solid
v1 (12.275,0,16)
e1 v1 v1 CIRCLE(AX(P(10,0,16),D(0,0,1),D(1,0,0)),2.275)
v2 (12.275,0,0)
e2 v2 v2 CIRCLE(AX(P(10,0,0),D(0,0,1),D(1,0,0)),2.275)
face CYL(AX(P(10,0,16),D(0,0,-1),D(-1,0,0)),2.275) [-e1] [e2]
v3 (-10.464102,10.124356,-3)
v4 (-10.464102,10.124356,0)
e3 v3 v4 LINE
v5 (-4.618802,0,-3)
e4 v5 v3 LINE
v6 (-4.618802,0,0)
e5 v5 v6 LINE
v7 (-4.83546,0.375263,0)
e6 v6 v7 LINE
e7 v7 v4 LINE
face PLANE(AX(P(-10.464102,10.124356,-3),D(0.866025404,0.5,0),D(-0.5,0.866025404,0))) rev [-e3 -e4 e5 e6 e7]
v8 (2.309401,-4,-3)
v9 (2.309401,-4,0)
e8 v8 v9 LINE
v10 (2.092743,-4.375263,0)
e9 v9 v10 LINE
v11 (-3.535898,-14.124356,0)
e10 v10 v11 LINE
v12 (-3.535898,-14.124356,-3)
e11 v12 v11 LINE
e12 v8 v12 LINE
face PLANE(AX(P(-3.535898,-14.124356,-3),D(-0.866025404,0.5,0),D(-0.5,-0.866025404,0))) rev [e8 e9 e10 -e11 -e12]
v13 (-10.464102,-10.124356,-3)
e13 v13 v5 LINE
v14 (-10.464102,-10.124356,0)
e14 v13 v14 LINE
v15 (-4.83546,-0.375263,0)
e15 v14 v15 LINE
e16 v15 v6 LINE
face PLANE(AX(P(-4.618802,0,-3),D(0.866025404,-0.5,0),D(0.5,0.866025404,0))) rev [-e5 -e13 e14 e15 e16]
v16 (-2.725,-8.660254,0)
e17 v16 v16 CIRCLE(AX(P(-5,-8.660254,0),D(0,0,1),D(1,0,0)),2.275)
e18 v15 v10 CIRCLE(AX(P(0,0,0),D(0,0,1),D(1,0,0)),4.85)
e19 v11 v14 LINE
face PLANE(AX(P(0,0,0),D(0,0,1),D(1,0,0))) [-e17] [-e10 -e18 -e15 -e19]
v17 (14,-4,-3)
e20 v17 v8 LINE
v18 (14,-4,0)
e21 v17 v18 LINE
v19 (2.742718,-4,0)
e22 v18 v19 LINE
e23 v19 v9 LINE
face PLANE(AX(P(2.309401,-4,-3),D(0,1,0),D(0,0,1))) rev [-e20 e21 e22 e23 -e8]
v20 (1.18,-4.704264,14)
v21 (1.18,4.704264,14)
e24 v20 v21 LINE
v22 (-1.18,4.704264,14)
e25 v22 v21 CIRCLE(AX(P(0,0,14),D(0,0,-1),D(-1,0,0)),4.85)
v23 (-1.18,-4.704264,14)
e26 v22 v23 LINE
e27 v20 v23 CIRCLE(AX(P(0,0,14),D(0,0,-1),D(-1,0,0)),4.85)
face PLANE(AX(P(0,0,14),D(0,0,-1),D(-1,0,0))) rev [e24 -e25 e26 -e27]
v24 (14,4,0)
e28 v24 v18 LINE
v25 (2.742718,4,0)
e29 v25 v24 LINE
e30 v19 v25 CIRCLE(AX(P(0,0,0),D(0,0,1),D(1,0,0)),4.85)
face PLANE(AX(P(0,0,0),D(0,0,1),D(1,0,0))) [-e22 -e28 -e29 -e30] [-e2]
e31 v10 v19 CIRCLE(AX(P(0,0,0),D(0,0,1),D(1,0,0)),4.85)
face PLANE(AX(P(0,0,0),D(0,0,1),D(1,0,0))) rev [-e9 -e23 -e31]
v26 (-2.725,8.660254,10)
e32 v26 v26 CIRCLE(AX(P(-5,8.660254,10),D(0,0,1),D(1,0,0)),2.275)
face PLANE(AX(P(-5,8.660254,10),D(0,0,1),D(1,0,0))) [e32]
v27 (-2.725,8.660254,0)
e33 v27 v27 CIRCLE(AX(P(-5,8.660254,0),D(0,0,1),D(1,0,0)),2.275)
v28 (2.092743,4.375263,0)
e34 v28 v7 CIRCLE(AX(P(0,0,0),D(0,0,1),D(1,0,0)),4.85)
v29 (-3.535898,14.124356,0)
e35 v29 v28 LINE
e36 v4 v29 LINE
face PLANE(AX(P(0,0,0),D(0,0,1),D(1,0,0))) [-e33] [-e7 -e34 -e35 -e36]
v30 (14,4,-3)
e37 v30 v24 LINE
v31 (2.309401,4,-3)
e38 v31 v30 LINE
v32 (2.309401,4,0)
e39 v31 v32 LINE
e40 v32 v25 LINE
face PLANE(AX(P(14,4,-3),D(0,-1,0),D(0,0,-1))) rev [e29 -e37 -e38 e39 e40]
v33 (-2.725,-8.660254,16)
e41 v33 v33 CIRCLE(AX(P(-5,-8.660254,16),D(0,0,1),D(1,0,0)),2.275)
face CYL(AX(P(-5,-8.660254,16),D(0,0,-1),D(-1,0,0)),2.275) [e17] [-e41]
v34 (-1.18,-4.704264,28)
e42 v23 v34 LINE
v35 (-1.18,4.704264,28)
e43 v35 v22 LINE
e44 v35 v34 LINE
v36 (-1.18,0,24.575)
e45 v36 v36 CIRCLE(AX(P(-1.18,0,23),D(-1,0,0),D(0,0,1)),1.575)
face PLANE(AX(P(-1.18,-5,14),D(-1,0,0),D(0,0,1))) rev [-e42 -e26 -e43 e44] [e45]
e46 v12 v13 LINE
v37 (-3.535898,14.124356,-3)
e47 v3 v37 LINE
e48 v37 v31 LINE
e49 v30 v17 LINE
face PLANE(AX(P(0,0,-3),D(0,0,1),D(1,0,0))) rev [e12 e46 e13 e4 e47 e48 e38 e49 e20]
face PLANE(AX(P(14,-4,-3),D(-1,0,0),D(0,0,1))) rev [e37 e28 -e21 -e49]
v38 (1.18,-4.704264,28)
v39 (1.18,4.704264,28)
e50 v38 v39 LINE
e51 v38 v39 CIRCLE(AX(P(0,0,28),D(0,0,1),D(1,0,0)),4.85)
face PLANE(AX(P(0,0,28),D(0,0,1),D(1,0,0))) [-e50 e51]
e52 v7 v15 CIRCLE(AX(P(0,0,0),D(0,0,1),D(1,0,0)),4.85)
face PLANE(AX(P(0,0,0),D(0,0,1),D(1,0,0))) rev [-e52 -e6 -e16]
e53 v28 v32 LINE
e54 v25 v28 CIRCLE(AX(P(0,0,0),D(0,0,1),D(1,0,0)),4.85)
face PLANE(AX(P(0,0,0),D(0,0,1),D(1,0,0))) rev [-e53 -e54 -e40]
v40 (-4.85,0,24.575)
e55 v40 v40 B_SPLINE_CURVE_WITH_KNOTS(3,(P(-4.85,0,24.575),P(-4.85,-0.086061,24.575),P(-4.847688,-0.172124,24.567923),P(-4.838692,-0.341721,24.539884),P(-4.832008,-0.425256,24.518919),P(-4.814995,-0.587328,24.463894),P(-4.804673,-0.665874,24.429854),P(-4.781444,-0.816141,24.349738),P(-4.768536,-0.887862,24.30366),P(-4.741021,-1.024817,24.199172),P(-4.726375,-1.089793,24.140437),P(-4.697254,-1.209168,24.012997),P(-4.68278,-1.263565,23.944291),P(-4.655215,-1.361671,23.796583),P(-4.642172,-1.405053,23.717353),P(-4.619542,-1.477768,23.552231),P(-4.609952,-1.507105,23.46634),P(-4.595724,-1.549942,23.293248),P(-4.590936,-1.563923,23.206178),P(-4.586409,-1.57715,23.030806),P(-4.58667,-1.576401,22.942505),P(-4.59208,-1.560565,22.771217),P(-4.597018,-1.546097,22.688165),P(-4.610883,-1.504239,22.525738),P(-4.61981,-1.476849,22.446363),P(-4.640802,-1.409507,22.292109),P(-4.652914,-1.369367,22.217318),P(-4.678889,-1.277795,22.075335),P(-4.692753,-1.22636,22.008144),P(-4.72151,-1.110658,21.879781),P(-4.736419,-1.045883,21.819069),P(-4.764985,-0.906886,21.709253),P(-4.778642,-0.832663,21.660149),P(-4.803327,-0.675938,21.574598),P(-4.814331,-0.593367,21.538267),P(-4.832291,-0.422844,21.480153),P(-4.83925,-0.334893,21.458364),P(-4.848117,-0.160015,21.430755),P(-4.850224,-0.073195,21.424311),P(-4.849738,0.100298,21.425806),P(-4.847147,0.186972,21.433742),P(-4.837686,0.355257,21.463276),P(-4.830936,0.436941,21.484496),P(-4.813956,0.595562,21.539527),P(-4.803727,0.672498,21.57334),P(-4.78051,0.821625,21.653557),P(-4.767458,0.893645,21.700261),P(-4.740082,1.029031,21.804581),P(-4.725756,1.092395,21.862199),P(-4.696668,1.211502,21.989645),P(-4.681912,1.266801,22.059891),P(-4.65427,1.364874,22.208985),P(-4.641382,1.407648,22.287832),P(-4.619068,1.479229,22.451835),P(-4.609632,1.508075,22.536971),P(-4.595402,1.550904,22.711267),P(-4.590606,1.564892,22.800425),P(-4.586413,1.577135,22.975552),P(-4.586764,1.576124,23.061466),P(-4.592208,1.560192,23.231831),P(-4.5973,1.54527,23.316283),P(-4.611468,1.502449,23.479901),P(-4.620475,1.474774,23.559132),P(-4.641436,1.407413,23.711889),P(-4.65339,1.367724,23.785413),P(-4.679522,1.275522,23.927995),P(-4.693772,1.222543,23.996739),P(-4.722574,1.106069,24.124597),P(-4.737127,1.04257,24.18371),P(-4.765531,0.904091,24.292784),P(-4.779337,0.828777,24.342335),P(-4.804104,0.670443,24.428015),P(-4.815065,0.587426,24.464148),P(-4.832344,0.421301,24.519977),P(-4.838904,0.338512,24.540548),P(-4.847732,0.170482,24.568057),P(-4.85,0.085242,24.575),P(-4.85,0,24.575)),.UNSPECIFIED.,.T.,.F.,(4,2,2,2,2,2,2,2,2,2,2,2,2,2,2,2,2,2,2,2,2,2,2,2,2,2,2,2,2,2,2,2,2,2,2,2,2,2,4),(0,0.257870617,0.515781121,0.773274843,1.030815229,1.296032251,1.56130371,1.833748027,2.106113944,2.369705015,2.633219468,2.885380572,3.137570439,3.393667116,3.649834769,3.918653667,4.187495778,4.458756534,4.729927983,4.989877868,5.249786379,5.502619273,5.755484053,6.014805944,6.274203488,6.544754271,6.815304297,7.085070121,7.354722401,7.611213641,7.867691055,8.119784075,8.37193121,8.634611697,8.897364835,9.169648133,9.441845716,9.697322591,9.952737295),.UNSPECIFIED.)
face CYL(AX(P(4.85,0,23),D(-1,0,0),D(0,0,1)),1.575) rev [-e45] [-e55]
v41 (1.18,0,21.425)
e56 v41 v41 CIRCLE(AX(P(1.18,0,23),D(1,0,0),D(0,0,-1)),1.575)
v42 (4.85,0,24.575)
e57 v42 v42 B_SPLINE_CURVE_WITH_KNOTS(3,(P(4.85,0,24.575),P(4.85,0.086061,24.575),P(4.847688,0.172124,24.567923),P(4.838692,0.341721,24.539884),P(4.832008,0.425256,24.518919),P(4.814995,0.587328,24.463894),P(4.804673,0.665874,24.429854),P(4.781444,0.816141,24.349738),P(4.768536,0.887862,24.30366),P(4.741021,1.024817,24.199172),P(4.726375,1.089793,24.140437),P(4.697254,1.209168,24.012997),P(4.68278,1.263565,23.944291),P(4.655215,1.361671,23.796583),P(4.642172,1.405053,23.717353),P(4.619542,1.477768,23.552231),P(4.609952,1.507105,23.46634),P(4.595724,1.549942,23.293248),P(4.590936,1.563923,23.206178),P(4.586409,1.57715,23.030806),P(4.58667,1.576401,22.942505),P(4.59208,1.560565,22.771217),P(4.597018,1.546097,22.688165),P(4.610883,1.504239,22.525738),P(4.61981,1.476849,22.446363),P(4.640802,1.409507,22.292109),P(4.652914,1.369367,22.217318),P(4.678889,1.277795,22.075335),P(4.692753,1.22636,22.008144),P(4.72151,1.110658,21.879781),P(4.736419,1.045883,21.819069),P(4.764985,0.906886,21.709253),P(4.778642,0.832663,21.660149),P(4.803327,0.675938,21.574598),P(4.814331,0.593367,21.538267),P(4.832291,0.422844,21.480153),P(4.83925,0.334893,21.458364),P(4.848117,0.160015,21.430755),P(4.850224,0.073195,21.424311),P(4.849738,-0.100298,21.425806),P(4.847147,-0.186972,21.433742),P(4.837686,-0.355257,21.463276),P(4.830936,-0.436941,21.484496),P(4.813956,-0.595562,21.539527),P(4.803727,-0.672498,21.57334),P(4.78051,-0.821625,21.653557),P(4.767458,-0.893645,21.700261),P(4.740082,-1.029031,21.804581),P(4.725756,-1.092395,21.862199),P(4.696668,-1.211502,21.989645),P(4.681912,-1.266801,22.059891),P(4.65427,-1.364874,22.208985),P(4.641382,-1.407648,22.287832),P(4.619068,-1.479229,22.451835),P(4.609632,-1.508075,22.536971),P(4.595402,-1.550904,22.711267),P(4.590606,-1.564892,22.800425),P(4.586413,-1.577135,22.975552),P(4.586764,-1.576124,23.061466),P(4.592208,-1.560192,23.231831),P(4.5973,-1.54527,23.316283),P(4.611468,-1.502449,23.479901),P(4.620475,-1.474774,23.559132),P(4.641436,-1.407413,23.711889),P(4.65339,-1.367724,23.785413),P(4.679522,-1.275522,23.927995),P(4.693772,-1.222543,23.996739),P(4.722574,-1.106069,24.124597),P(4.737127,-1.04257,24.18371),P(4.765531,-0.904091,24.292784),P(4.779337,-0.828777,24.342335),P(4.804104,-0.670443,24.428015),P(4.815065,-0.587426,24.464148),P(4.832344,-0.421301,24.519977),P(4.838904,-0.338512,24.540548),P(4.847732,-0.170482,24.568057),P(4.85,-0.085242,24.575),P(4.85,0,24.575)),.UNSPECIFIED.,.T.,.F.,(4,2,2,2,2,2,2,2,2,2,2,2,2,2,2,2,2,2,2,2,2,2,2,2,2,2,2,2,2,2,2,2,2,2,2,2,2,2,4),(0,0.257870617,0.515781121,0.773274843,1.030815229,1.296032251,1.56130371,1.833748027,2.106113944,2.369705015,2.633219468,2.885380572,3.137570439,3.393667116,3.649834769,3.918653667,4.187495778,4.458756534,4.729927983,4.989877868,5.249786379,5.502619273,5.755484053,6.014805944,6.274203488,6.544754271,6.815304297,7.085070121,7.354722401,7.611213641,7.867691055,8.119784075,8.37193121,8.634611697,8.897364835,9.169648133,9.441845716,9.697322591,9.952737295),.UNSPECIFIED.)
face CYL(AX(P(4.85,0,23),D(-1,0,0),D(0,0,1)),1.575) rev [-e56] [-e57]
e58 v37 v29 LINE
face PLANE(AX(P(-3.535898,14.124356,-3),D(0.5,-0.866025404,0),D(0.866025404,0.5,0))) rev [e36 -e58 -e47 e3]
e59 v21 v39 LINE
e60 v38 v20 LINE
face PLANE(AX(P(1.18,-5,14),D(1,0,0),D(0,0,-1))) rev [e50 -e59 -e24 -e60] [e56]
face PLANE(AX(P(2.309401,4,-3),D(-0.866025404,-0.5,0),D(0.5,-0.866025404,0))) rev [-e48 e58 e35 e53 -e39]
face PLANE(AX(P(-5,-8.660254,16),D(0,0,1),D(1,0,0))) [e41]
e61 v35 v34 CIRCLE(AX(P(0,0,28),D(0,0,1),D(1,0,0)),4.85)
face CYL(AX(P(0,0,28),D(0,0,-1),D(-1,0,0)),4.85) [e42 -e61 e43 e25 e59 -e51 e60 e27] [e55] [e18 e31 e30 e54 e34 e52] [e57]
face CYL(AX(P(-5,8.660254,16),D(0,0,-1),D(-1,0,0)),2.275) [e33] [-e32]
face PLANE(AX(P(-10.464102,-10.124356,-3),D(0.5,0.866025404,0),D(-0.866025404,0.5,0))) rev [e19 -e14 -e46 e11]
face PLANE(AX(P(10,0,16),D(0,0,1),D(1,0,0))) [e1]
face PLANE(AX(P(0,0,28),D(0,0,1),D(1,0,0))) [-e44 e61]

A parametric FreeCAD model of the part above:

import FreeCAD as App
import Part
import Sketcher
from FreeCAD import Vector
Q = App.Units.Quantity


def add_polygon(sketch, points):
    """Adds a closed chain of lines whose ends are joined by coincident constraints."""
    first, n = sketch.GeometryCount, len(points)
    for a, b in zip(points, points[1:] + points[:1]):
        sketch.addGeometry(Part.LineSegment(App.Vector(*a, 0), App.Vector(*b, 0)), False)
    for i in range(n):
        sketch.addConstraint(Sketcher.Constraint("Coincident", first + i, 2, first + (i + 1) % n, 1))

doc = App.newDocument("Part")
body = doc.addObject("PartDesign::Body", "Body")

# Sketch on XY plane
sketch1 = body.newObject("Sketcher::SketchObject", "Sketch")
sketch1.AttachmentSupport = (doc.getObject("XY_Plane"), [""])
sketch1.MapMode = "FlatFace"
sketch1.addGeometry(Part.Circle(Vector(0, 0, 0), Vector(0, 0, 1), 4.8), False)
sketch1.addConstraint(Sketcher.Constraint("Coincident", 0, 3, -1, 1))
sketch1.addConstraint(Sketcher.Constraint("Diameter", 0, Q("9.7 mm")))
pad1 = body.newObject("PartDesign::Pad", "Pad")
pad1.Profile = sketch1
pad1.Length = 28

# Sketch on XY plane
sketch2 = body.newObject("Sketcher::SketchObject", "Sketch001")
sketch2.AttachmentSupport = (doc.getObject("XY_Plane"), [""])
sketch2.MapMode = "FlatFace"
sketch2.AttachmentOffset = App.Placement(Vector(0, 0, 28), App.Rotation())
add_polygon(sketch2, [(-1.2, 5), (-1.2, -5), (1.2, -5), (1.2, 5)])  # lines 0-3
sketch2.addConstraint(Sketcher.Constraint("Vertical", 0))
sketch2.addConstraint(Sketcher.Constraint("Horizontal", 1))
sketch2.addConstraint(Sketcher.Constraint("Vertical", 2))
sketch2.addConstraint(Sketcher.Constraint("Horizontal", 3))
sketch2.addConstraint(Sketcher.Constraint("Symmetric", 0, 2, 2, 2, -1, 1))
sketch2.addConstraint(Sketcher.Constraint("DistanceY", 0, 2, 0, 1, Q("10 mm")))
sketch2.addConstraint(Sketcher.Constraint("DistanceX", 1, 1, 1, 2, Q("2.36 mm")))
pocket1 = body.newObject("PartDesign::Pocket", "Pocket")
pocket1.Profile = sketch2
pocket1.Length = 14

# Sketch on YZ plane
sketch3 = body.newObject("Sketcher::SketchObject", "Sketch002")
sketch3.AttachmentSupport = (doc.getObject("YZ_Plane"), [""])
sketch3.MapMode = "FlatFace"
sketch3.AttachmentOffset = App.Placement(Vector(0, 0, 1.18), App.Rotation())
sketch3.addGeometry(Part.Circle(Vector(0, 23, 0), Vector(0, 0, 1), 1.6), False)
sketch3.addConstraint(Sketcher.Constraint("PointOnObject", 0, 3, -2))
sketch3.addConstraint(Sketcher.Constraint("Diameter", 0, Q("3.15 mm")))
sketch3.addConstraint(Sketcher.Constraint("DistanceY", -1, 1, 0, 3, Q("23 mm")))
pocket2 = body.newObject("PartDesign::Pocket", "Pocket001")
pocket2.Profile = sketch3
pocket2.Type = "ThroughAll"
pocket2.Midplane = True

# Sketch on XY plane
sketch4 = body.newObject("Sketcher::SketchObject", "Sketch003")
sketch4.AttachmentSupport = (doc.getObject("XY_Plane"), [""])
sketch4.MapMode = "FlatFace"
add_polygon(sketch4, [(14, -4), (2, -4), (-4, -14), (-10, -10), (-5, 0), (-10, 10), (-4, 14), (2, 4), (14, 4)])  # lines 0-8
sketch4.addConstraint(Sketcher.Constraint("Horizontal", 0))
sketch4.addConstraint(Sketcher.Constraint("Horizontal", 7))
sketch4.addConstraint(Sketcher.Constraint("Vertical", 8))
sketch4.addConstraint(Sketcher.Constraint("Symmetric", 2, 2, 4, 2, -1))
sketch4.addConstraint(Sketcher.Constraint("Symmetric", 1, 2, 5, 2, -1))
sketch4.addConstraint(Sketcher.Constraint("Symmetric", 0, 2, 6, 2, -1))
sketch4.addConstraint(Sketcher.Constraint("PointOnObject", 3, 2, -1))
sketch4.addConstraint(Sketcher.Constraint("Perpendicular", 1, 2))
sketch4.addConstraint(Sketcher.Constraint("Perpendicular", 2, 3))
sketch4.addConstraint(Sketcher.Constraint("Equal", 1, 3))
sketch4.addConstraint(Sketcher.Constraint("DistanceY", 8, 2, 8, 1, Q("8 mm")))
sketch4.addConstraint(Sketcher.Constraint("Angle", 1, Q("-120 deg")))
sketch4.addConstraint(Sketcher.Constraint("DistanceX", -1, 1, 7, 2, Q("14 mm")))
sketch4.addConstraint(Sketcher.Constraint("DistanceX", 0, 2, 0, 1, Q("11.690599 mm")))
sketch4.addConstraint(Sketcher.Constraint("Distance", 1, Q("11.690599 mm")))
pad2 = body.newObject("PartDesign::Pad", "Pad001")
pad2.Profile = sketch4
pad2.Length = 3
pad2.Reversed = True

# Sketch on XY plane
sketch5 = body.newObject("Sketcher::SketchObject", "Sketch004")
sketch5.AttachmentSupport = (doc.getObject("XY_Plane"), [""])
sketch5.MapMode = "FlatFace"
sketch5.addGeometry(Part.Circle(Vector(-5, 8.7, 0), Vector(0, 0, 1), 2.3), False)
sketch5.addGeometry(Part.Circle(Vector(-5, -8.7, 0), Vector(0, 0, 1), 2.3), False)
sketch5.addGeometry(Part.Circle(Vector(10, 0, 0), Vector(0, 0, 1), 2.3), False)
sketch5.addConstraint(Sketcher.Constraint("Equal", 0, 1))
sketch5.addConstraint(Sketcher.Constraint("Equal", 1, 2))
sketch5.addConstraint(Sketcher.Constraint("Symmetric", 0, 3, 1, 3, -1))
sketch5.addConstraint(Sketcher.Constraint("PointOnObject", 2, 3, -1))
sketch5.addConstraint(Sketcher.Constraint("Diameter", 0, Q("4.55 mm")))
sketch5.addConstraint(Sketcher.Constraint("DistanceX", 0, 3, -1, 1, Q("5 mm")))
sketch5.addConstraint(Sketcher.Constraint("DistanceX", -1, 1, 2, 3, Q("10 mm")))
sketch5.addConstraint(Sketcher.Constraint("DistanceY", 1, 3, 0, 3, Q("17.320508 mm")))
pad3 = body.newObject("PartDesign::Pad", "Pad002")
pad3.Profile = sketch5
pad3.Length = 16

# Sketch on XY plane
sketch6 = body.newObject("Sketcher::SketchObject", "Sketch005")
sketch6.AttachmentSupport = (doc.getObject("XY_Plane"), [""])
sketch6.MapMode = "FlatFace"
sketch6.AttachmentOffset = App.Placement(Vector(0, 0, 10), App.Rotation())
sketch6.addGeometry(Part.Circle(Vector(-5, 8.7, 0), Vector(0, 0, 1), 2.3), False)
sketch6.addConstraint(Sketcher.Constraint("Diameter", 0, Q("4.55 mm")))
sketch6.addConstraint(Sketcher.Constraint("DistanceX", 0, 3, -1, 1, Q("5 mm")))
sketch6.addConstraint(Sketcher.Constraint("DistanceY", -1, 1, 0, 3, Q("8.660254 mm")))
pocket3 = body.newObject("PartDesign::Pocket", "Pocket002")
pocket3.Profile = sketch6
pocket3.Length = 6
pocket3.Reversed = True

doc.recompute()
